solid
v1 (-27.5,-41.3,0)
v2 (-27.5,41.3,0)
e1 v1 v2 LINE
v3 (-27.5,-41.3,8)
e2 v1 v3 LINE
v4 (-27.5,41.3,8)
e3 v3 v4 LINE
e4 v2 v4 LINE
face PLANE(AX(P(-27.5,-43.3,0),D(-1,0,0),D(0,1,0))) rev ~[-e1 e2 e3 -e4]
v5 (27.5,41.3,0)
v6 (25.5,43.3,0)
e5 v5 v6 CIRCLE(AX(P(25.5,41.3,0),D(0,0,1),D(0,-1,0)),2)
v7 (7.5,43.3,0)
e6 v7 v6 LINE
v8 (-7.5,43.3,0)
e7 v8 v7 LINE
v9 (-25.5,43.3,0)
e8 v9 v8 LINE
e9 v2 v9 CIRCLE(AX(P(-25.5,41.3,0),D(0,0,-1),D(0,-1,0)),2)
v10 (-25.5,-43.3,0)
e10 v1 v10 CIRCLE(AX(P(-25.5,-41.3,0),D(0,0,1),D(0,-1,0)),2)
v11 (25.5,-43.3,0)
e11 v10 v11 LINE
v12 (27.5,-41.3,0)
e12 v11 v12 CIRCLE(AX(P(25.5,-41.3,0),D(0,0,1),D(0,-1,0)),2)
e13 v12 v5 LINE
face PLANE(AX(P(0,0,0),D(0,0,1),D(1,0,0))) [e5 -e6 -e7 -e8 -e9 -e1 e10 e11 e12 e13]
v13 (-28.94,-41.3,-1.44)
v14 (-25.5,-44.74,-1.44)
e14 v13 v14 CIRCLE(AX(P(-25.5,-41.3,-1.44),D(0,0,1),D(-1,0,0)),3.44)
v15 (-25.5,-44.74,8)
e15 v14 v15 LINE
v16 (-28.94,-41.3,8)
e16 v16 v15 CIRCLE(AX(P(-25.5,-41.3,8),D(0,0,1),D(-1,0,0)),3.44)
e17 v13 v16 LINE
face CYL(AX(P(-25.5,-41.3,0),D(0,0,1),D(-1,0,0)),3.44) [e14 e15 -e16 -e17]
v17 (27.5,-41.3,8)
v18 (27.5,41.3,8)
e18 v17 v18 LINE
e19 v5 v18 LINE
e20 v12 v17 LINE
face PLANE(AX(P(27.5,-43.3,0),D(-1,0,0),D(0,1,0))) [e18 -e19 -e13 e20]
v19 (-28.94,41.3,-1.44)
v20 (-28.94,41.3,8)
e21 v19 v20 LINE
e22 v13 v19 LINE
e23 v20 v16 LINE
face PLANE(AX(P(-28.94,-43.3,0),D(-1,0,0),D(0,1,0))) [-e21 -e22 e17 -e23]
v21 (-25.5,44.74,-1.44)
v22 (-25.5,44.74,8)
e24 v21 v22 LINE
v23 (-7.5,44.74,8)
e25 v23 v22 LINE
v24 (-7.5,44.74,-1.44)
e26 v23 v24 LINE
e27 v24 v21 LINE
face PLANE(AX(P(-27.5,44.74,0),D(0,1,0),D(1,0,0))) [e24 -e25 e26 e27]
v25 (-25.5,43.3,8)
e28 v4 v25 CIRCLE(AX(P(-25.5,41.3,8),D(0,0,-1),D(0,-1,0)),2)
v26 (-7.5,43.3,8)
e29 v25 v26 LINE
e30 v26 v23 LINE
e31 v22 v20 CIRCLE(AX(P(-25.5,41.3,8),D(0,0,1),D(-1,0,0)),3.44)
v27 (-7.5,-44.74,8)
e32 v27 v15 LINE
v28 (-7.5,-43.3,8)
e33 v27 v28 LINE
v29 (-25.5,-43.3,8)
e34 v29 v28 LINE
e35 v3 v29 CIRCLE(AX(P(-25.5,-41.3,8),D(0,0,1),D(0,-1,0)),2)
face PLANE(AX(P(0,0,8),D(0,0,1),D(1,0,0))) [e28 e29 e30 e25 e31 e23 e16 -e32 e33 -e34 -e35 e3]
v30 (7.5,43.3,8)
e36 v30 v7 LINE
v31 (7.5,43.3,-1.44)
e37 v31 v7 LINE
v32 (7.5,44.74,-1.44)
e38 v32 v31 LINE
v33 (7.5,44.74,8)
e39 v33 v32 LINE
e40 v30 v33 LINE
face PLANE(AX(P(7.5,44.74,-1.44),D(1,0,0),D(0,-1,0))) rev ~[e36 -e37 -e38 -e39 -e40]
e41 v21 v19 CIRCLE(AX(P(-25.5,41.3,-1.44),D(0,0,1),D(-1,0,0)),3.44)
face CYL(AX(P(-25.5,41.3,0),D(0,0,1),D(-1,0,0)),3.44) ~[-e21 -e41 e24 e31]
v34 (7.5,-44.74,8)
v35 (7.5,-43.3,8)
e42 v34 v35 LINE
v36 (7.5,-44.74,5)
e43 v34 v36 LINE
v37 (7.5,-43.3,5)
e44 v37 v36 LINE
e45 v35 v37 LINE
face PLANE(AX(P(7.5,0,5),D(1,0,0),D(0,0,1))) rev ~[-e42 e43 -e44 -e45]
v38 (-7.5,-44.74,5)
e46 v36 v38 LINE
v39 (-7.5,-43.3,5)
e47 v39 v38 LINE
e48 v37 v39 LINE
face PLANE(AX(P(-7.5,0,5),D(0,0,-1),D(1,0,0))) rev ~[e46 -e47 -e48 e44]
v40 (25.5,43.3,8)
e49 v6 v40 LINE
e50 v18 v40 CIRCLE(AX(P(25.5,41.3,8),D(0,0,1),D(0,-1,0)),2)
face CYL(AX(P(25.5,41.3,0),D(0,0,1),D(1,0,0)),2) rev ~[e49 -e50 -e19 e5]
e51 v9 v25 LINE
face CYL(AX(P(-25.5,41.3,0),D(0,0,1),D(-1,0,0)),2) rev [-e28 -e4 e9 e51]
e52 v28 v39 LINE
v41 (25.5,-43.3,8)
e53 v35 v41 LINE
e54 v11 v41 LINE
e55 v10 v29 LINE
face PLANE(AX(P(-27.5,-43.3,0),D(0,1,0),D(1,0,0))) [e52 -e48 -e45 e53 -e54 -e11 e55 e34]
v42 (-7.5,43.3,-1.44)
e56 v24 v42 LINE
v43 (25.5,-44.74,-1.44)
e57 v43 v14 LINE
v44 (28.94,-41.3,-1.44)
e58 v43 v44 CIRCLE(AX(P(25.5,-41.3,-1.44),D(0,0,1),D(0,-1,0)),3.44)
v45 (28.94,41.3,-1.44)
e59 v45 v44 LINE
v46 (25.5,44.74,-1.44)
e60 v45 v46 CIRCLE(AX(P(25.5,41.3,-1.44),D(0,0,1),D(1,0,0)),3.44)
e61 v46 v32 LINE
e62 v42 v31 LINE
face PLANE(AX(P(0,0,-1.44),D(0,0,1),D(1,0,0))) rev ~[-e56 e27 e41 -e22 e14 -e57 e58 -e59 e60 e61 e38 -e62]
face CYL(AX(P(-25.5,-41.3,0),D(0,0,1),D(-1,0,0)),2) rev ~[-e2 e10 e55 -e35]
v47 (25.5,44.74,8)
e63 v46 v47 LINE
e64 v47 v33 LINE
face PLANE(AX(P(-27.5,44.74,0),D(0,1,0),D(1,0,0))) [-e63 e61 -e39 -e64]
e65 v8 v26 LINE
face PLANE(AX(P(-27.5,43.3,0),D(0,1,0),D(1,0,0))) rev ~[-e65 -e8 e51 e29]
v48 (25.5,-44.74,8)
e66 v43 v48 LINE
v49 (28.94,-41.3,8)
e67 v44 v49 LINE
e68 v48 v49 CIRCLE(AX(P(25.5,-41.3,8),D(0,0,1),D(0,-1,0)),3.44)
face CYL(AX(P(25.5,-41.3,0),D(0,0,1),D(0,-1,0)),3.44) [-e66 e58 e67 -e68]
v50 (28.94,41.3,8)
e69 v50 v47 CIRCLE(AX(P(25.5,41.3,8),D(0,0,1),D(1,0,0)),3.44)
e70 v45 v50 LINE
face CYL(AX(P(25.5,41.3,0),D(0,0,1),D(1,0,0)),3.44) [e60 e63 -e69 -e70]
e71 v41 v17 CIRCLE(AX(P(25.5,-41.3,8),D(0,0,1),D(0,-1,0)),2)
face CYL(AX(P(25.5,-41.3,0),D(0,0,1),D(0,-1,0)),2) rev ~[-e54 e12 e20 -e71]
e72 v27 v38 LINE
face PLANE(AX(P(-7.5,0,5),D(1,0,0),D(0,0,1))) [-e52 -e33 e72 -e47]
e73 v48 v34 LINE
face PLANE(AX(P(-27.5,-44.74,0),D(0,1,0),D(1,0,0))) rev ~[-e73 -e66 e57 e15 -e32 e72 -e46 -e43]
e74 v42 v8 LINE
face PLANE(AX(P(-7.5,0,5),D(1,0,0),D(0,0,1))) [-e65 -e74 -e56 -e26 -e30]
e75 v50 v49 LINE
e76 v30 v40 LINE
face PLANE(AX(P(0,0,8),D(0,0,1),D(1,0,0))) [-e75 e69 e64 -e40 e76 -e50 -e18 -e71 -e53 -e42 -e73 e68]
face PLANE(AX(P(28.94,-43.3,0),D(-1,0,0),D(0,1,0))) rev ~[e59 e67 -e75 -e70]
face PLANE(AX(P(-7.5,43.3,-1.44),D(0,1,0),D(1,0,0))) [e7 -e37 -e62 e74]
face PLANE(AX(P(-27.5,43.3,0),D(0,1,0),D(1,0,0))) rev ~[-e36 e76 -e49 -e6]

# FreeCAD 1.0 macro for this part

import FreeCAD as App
import Part
import Sketcher

V = App.Vector


def edges_at(feature, points):
    """Names of the edges that pass closest to the given points."""
    edges = feature.Shape.Edges
    near = lambda p: min(range(len(edges)), key=lambda i: edges[i].distToShape(Part.Vertex(*p))[0])
    return sorted({f"Edge{near(p) + 1}" for p in points})


def faces_at(feature, points):
    """Names of the faces that lie closest to the given points."""
    faces = feature.Shape.Faces
    near = lambda p: min(range(len(faces)), key=lambda i: faces[i].distToShape(Part.Vertex(*p))[0])
    return sorted({f"Face{near(p) + 1}" for p in points})

doc = App.newDocument("Part")
body = doc.addObject("PartDesign::Body", "Body")

# Sketch on XY plane
sketch1 = doc.addObject("Sketcher::SketchObject", "Sketch")
body.addObject(sketch1)
sketch1.AttachmentSupport = (doc.XY_Plane, [""])
sketch1.MapMode = "FlatFace"
sketch1.addGeometry([
    Part.LineSegment(V(-28, 43, 0), V(-28, -43, 0)),
    Part.LineSegment(V(-28, -43, 0), V(28, -43, 0)),
    Part.LineSegment(V(28, -43, 0), V(28, 43, 0)),
    Part.LineSegment(V(28, 43, 0), V(-28, 43, 0)),
], False)
sketch1.addConstraint([
    Sketcher.Constraint("Coincident", 0, 2, 1, 1),
    Sketcher.Constraint("Coincident", 1, 2, 2, 1),
    Sketcher.Constraint("Coincident", 2, 2, 3, 1),
    Sketcher.Constraint("Coincident", 3, 2, 0, 1),
    Sketcher.Constraint("Vertical", 0),
    Sketcher.Constraint("Horizontal", 1),
    Sketcher.Constraint("Vertical", 2),
    Sketcher.Constraint("Horizontal", 3),
    Sketcher.Constraint("Symmetric", 0, 2, 2, 2, -1, 1),
    Sketcher.Constraint("DistanceX", 1, 1, 1, 2, 55.0),
    Sketcher.Constraint("DistanceY", 0, 2, 0, 1, 86.6),
])
pad1 = doc.addObject("PartDesign::Pad", "Pad")
body.addObject(pad1)
pad1.Profile = sketch1
pad1.Length = 8
doc.recompute()

fillet = doc.addObject("PartDesign::Fillet", "Fillet")
body.addObject(fillet)
fillet.Base = (pad1, edges_at(pad1, [
    (-27.5, -43.3, 4),
    (27.5, -43.3, 4),
    (27.5, 43.3, 4),
    (-27.5, 43.3, 4),
]))
fillet.Radius = 2
doc.recompute()

thickness = doc.addObject("PartDesign::Thickness", "Thickness")
body.addObject(thickness)
thickness.Base = (fillet, faces_at(fillet, [(0, 0, 8)]))
thickness.Value = 1.44
thickness.Reversed = False
thickness.Join = "Intersection"

# Sketch on XZ plane
sketch2 = doc.addObject("Sketcher::SketchObject", "Sketch001")
body.addObject(sketch2)
sketch2.AttachmentSupport = (doc.XZ_Plane, [""])
sketch2.MapMode = "FlatFace"
sketch2.addGeometry([
    Part.LineSegment(V(-7.5, 8, 0), V(-7.5, 5, 0)),
    Part.LineSegment(V(-7.5, 5, 0), V(7.5, 5, 0)),
    Part.LineSegment(V(7.5, 5, 0), V(7.5, 8, 0)),
    Part.LineSegment(V(7.5, 8, 0), V(-7.5, 8, 0)),
], False)
sketch2.addConstraint([
    Sketcher.Constraint("Coincident", 0, 2, 1, 1),
    Sketcher.Constraint("Coincident", 1, 2, 2, 1),
    Sketcher.Constraint("Coincident", 2, 2, 3, 1),
    Sketcher.Constraint("Coincident", 3, 2, 0, 1),
    Sketcher.Constraint("Vertical", 0),
    Sketcher.Constraint("Horizontal", 1),
    Sketcher.Constraint("Vertical", 2),
    Sketcher.Constraint("Horizontal", 3),
    Sketcher.Constraint("DistanceX", 1, 1, 1, 2, 15.0),
    Sketcher.Constraint("DistanceY", 0, 2, 0, 1, 3.0),
    Sketcher.Constraint("DistanceY", -1, 1, 0, 2, 5.0),
    Sketcher.Constraint("DistanceX", 0, 2, -1, 1, 7.5),
])
pocket1 = doc.addObject("PartDesign::Pocket", "Pocket")
body.addObject(pocket1)
pocket1.Profile = sketch2
pocket1.Length = 96.2
pocket1.Midplane = True

# Sketch on XY plane
sketch3 = doc.addObject("Sketcher::SketchObject", "Sketch002")
body.addObject(sketch3)
sketch3.AttachmentSupport = (doc.XY_Plane, [""])
sketch3.MapMode = "FlatFace"
sketch3.AttachmentOffset = App.Placement(V(0, 0, -1.44), App.Rotation())
sketch3.addGeometry([
    Part.LineSegment(V(-7.5, 43.3, 0), V(-7.5, 44.7, 0)),
    Part.LineSegment(V(-7.5, 44.7, 0), V(7.5, 44.7, 0)),
    Part.LineSegment(V(7.5, 44.7, 0), V(7.5, 43.3, 0)),
    Part.LineSegment(V(7.5, 43.3, 0), V(-7.5, 43.3, 0)),
], False)
sketch3.addConstraint([
    Sketcher.Constraint("Coincident", 0, 2, 1, 1),
    Sketcher.Constraint("Coincident", 1, 2, 2, 1),
    Sketcher.Constraint("Coincident", 2, 2, 3, 1),
    Sketcher.Constraint("Coincident", 3, 2, 0, 1),
    Sketcher.Constraint("Vertical", 0),
    Sketcher.Constraint("Horizontal", 1),
    Sketcher.Constraint("Vertical", 2),
    Sketcher.Constraint("Horizontal", 3),
    Sketcher.Constraint("DistanceX", 1, 1, 1, 2, 15.0),
    Sketcher.Constraint("DistanceY", 0, 1, 0, 2, 1.44),
    Sketcher.Constraint("DistanceX", 0, 2, -1, 1, 7.5),
    Sketcher.Constraint("DistanceY", -1, 1, 2, 2, 43.3),
])
pocket2 = doc.addObject("PartDesign::Pocket", "Pocket001")
body.addObject(pocket2)
pocket2.Profile = sketch3
pocket2.Length = 25
pocket2.Reversed = True

doc.recompute()
